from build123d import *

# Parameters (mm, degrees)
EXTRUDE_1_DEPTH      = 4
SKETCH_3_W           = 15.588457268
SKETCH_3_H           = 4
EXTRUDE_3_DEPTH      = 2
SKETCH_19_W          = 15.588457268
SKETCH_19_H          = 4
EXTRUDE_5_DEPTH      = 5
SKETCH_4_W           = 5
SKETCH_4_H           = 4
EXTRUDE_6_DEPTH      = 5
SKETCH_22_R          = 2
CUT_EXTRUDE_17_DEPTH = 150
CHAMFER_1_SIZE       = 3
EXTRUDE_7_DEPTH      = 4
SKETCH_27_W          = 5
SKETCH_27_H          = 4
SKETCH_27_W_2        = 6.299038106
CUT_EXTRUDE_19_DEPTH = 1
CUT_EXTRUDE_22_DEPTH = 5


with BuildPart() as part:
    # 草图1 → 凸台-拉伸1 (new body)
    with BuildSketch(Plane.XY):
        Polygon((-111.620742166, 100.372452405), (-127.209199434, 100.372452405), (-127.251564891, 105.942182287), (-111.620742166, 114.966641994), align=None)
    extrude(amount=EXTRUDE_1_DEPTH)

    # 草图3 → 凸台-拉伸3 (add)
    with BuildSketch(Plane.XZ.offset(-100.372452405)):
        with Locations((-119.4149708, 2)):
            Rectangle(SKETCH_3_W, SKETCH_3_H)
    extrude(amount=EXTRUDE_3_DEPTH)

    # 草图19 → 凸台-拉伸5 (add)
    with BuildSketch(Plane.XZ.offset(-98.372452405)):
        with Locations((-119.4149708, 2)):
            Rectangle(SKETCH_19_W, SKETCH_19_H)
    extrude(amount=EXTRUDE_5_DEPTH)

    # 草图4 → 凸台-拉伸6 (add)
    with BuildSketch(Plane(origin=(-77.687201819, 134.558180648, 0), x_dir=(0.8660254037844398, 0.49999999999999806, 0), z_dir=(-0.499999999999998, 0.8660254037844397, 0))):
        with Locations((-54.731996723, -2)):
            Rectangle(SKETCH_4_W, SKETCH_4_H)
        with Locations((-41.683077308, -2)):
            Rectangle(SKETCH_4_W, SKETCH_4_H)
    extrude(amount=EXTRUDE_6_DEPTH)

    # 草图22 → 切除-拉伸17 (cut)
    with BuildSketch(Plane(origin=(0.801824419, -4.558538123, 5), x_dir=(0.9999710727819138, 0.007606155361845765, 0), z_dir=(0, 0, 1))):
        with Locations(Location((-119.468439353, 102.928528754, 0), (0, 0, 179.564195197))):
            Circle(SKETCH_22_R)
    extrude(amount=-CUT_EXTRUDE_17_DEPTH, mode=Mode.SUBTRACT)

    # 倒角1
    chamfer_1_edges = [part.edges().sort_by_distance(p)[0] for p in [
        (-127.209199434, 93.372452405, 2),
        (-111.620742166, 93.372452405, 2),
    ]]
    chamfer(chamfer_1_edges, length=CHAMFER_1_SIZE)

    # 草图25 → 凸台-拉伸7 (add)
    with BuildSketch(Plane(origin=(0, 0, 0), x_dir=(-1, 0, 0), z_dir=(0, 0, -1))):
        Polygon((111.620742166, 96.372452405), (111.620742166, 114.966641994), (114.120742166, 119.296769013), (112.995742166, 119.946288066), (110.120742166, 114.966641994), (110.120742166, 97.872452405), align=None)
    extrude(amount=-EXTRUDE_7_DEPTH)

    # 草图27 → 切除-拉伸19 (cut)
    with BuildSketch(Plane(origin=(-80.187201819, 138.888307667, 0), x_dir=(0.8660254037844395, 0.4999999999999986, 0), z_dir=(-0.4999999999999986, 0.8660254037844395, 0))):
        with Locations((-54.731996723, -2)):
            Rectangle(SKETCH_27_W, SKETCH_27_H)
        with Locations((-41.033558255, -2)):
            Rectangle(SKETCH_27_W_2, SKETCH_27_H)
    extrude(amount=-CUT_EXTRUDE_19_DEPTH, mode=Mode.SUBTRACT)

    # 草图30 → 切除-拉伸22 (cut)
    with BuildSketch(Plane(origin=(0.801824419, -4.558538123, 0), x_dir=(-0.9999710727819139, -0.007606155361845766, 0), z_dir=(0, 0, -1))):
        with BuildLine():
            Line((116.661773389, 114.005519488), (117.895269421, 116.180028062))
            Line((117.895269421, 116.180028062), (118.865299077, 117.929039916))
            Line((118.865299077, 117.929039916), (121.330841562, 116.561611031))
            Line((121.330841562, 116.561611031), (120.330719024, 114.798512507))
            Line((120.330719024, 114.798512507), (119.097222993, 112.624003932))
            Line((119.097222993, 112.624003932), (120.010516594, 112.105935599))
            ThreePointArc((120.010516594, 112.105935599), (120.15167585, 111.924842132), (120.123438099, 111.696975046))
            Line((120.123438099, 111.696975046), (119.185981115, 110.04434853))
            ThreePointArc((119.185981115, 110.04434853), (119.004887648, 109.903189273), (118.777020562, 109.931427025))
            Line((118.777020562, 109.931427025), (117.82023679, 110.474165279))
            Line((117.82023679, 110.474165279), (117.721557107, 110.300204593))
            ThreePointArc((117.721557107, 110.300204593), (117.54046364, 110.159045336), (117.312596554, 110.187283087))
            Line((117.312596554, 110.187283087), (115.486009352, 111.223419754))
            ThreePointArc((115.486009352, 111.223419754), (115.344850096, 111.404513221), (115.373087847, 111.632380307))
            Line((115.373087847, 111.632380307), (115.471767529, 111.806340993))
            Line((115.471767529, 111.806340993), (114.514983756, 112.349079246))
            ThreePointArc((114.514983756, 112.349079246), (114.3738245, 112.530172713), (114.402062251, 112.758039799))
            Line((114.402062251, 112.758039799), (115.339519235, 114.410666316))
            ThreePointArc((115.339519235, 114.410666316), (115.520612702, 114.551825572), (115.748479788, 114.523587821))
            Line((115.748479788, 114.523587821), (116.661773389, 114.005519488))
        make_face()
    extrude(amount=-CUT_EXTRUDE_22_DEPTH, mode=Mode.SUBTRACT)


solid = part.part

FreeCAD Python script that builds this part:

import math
import FreeCAD as App
import Part
import Sketcher
from FreeCAD import Vector
Q = App.Units.Quantity


def edges_at(feature, points):
    """Names of the edges that pass closest to the given points."""
    edges = feature.Shape.Edges
    near = lambda p: min(range(len(edges)), key=lambda i: edges[i].distToShape(Part.Vertex(*p))[0])
    return sorted({f"Edge{near(p) + 1}" for p in points})

doc = App.newDocument("Part")
body = doc.addObject("PartDesign::Body", "Body")

# Sketch on XY plane
sketch1 = doc.addObject("Sketcher::SketchObject", "Sketch")
body.addObject(sketch1)
sketch1.AttachmentSupport = (doc.XY_Plane, [""])
sketch1.MapMode = "FlatFace"
sketch1.addGeometry([
    Part.LineSegment(Vector(-127.209199, 100.372452, 0), Vector(-111.620742, 100.372452, 0)),
    Part.LineSegment(Vector(-111.620742, 100.372452, 0), Vector(-111.620742, 114.966642, 0)),
    Part.LineSegment(Vector(-111.620742, 114.966642, 0), Vector(-127.251565, 105.942182, 0)),
    Part.LineSegment(Vector(-127.251565, 105.942182, 0), Vector(-127.209199, 100.372452, 0)),
], False)
sketch1.addConstraint([
    Sketcher.Constraint("Coincident", 0, 2, 1, 1),
    Sketcher.Constraint("Coincident", 1, 2, 2, 1),
    Sketcher.Constraint("Coincident", 2, 2, 3, 1),
    Sketcher.Constraint("Coincident", 3, 2, 0, 1),
    Sketcher.Constraint("Horizontal", 0),
    Sketcher.Constraint("Vertical", 1),
    Sketcher.Constraint("DistanceY", 1, 1, 1, 2, Q("14.59419 mm")),
    Sketcher.Constraint("DistanceX", 3, 2, -1, 1, Q("127.209199 mm")),
    Sketcher.Constraint("Distance", 2, Q("18.048919 mm")),
    Sketcher.Constraint("Distance", 3, Q("5.569891 mm")),
    Sketcher.Constraint("DistanceX", 0, 1, 0, 2, Q("15.588457 mm")),
    Sketcher.Constraint("DistanceY", -1, 1, 1, 2, Q("114.966642 mm")),
])
pad1 = doc.addObject("PartDesign::Pad", "Pad")
body.addObject(pad1)
pad1.Profile = sketch1
pad1.Length = 4

# Sketch on XZ plane
sketch2 = doc.addObject("Sketcher::SketchObject", "Sketch001")
body.addObject(sketch2)
sketch2.AttachmentSupport = (doc.XZ_Plane, [""])
sketch2.MapMode = "FlatFace"
sketch2.AttachmentOffset = App.Placement(Vector(0, 0, -100.372452), App.Rotation())
sketch2.addGeometry([
    Part.LineSegment(Vector(-127.209199, 4, 0), Vector(-127.209199, 0, 0)),
    Part.LineSegment(Vector(-127.209199, 0, 0), Vector(-111.620742, 0, 0)),
    Part.LineSegment(Vector(-111.620742, 0, 0), Vector(-111.620742, 4, 0)),
    Part.LineSegment(Vector(-111.620742, 4, 0), Vector(-127.209199, 4, 0)),
], False)
sketch2.addConstraint([
    Sketcher.Constraint("Coincident", 0, 2, 1, 1),
    Sketcher.Constraint("Coincident", 1, 2, 2, 1),
    Sketcher.Constraint("Coincident", 2, 2, 3, 1),
    Sketcher.Constraint("Coincident", 3, 2, 0, 1),
    Sketcher.Constraint("Vertical", 0),
    Sketcher.Constraint("Horizontal", 1),
    Sketcher.Constraint("Vertical", 2),
    Sketcher.Constraint("Horizontal", 3),
    Sketcher.Constraint("PointOnObject", 0, 2, -1),
    Sketcher.Constraint("DistanceY", 0, 2, 0, 1, Q("4 mm")),
    Sketcher.Constraint("DistanceX", 0, 2, -1, 1, Q("127.209199 mm")),
    Sketcher.Constraint("DistanceX", 1, 1, 1, 2, Q("15.588457 mm")),
])
pad2 = doc.addObject("PartDesign::Pad", "Pad001")
body.addObject(pad2)
pad2.Profile = sketch2
pad2.Length = 2

# Sketch on XZ plane
sketch3 = doc.addObject("Sketcher::SketchObject", "Sketch002")
body.addObject(sketch3)
sketch3.AttachmentSupport = (doc.XZ_Plane, [""])
sketch3.MapMode = "FlatFace"
sketch3.AttachmentOffset = App.Placement(Vector(0, 0, -98.372452), App.Rotation())
sketch3.addGeometry([
    Part.LineSegment(Vector(-127.209199, 4, 0), Vector(-127.209199, 0, 0)),
    Part.LineSegment(Vector(-127.209199, 0, 0), Vector(-111.620742, 0, 0)),
    Part.LineSegment(Vector(-111.620742, 0, 0), Vector(-111.620742, 4, 0)),
    Part.LineSegment(Vector(-111.620742, 4, 0), Vector(-127.209199, 4, 0)),
], False)
sketch3.addConstraint([
    Sketcher.Constraint("Coincident", 0, 2, 1, 1),
    Sketcher.Constraint("Coincident", 1, 2, 2, 1),
    Sketcher.Constraint("Coincident", 2, 2, 3, 1),
    Sketcher.Constraint("Coincident", 3, 2, 0, 1),
    Sketcher.Constraint("Vertical", 0),
    Sketcher.Constraint("Horizontal", 1),
    Sketcher.Constraint("Vertical", 2),
    Sketcher.Constraint("Horizontal", 3),
    Sketcher.Constraint("PointOnObject", 0, 2, -1),
    Sketcher.Constraint("DistanceY", 0, 2, 0, 1, Q("4 mm")),
    Sketcher.Constraint("DistanceX", 0, 2, -1, 1, Q("127.209199 mm")),
    Sketcher.Constraint("DistanceX", 1, 1, 1, 2, Q("15.588457 mm")),
])
pad3 = doc.addObject("PartDesign::Pad", "Pad002")
body.addObject(pad3)
pad3.Profile = sketch3
pad3.Length = 5

# Sketch on an angled plane
sketch4 = doc.addObject("Sketcher::SketchObject", "Sketch003")
body.addObject(sketch4)
sketch4.Placement = App.Placement(Vector(-77.687202, 134.558181, 0), App.Rotation(Vector(0.866025404, 0.5, 0), Vector(0, 0, -1), Vector(-0.5, 0.866025404, 0), "ZXY"))
sketch4.addGeometry([
    Part.LineSegment(Vector(-57.231997, 0, 0), Vector(-57.231997, -4, 0)),  # 0
    Part.LineSegment(Vector(-57.231997, -4, 0), Vector(-52.231997, -4, 0)),  # 1
    Part.LineSegment(Vector(-52.231997, -4, 0), Vector(-52.231997, 0, 0)),  # 2
    Part.LineSegment(Vector(-52.231997, 0, 0), Vector(-57.231997, 0, 0)),  # 3
    Part.LineSegment(Vector(-44.183077, 0, 0), Vector(-44.183077, -4, 0)),  # 4
    Part.LineSegment(Vector(-44.183077, -4, 0), Vector(-39.183077, -4, 0)),  # 5
    Part.LineSegment(Vector(-39.183077, -4, 0), Vector(-39.183077, 0, 0)),  # 6
    Part.LineSegment(Vector(-39.183077, 0, 0), Vector(-44.183077, 0, 0)),  # 7
], False)
sketch4.addConstraint([
    Sketcher.Constraint("Coincident", 0, 2, 1, 1),
    Sketcher.Constraint("Coincident", 1, 2, 2, 1),
    Sketcher.Constraint("Coincident", 2, 2, 3, 1),
    Sketcher.Constraint("Coincident", 3, 2, 0, 1),
    Sketcher.Constraint("Coincident", 4, 2, 5, 1),
    Sketcher.Constraint("Coincident", 5, 2, 6, 1),
    Sketcher.Constraint("Coincident", 6, 2, 7, 1),
    Sketcher.Constraint("Coincident", 7, 2, 4, 1),
    Sketcher.Constraint("Vertical", 0),
    Sketcher.Constraint("Horizontal", 1),
    Sketcher.Constraint("Vertical", 2),
    Sketcher.Constraint("Horizontal", 3),
    Sketcher.Constraint("Vertical", 4),
    Sketcher.Constraint("Horizontal", 5),
    Sketcher.Constraint("Vertical", 6),
    Sketcher.Constraint("Horizontal", 7),
    Sketcher.Constraint("PointOnObject", 2, 2, -1),
    Sketcher.Constraint("PointOnObject", 6, 2, -1),
    Sketcher.Constraint("Horizontal", 1, 2, 4, 2),
    Sketcher.Constraint("Equal", 3, 5),
    Sketcher.Constraint("DistanceX", 1, 1, 1, 2, Q("5 mm")),
    Sketcher.Constraint("DistanceY", 0, 2, 0, 1, Q("4 mm")),
    Sketcher.Constraint("DistanceX", 1, 2, 4, 2, Q("8.048919 mm")),
    Sketcher.Constraint("DistanceX", 0, 2, -1, 1, Q("57.231997 mm")),
])
pad4 = doc.addObject("PartDesign::Pad", "Pad003")
body.addObject(pad4)
pad4.Profile = sketch4
pad4.Length = 5

# Sketch on XY plane
sketch5 = doc.addObject("Sketcher::SketchObject", "Sketch004")
body.addObject(sketch5)
sketch5.AttachmentSupport = (doc.XY_Plane, [""])
sketch5.MapMode = "FlatFace"
sketch5.AttachmentOffset = App.Placement(Vector(0, 0, 5), App.Rotation())
sketch5.addGeometry(Part.Circle(Vector(-119.446049, 97.458318, 0), Vector(0, 0, 1), 2), False)
sketch5.addConstraint([
    Sketcher.Constraint("Diameter", 0, Q("4 mm")),
    Sketcher.Constraint("DistanceX", 0, 3, -1, 1, Q("119.446049 mm")),
    Sketcher.Constraint("DistanceY", -1, 1, 0, 3, Q("97.458318 mm")),
])
pocket1 = doc.addObject("PartDesign::Pocket", "Pocket")
body.addObject(pocket1)
pocket1.Profile = sketch5
pocket1.Length = 150
doc.recompute()

chamfer = doc.addObject("PartDesign::Chamfer", "Chamfer")
body.addObject(chamfer)
chamfer.Base = (pocket1, edges_at(pocket1, [(-127.209, 93.372, 2), (-111.621, 93.372, 2)]))
chamfer.Size = 3

# Sketch on XY plane
sketch6 = doc.addObject("Sketcher::SketchObject", "Sketch005")
body.addObject(sketch6)
sketch6.AttachmentSupport = (doc.XY_Plane, [""])
sketch6.MapMode = "FlatFace"
sketch6.addGeometry([
    Part.LineSegment(Vector(-111.620742, 96.372452, 0), Vector(-111.620742, 114.966642, 0)),  # 0
    Part.LineSegment(Vector(-111.620742, 114.966642, 0), Vector(-114.120742, 119.296769, 0)),  # 1
    Part.LineSegment(Vector(-114.120742, 119.296769, 0), Vector(-112.995742, 119.946288, 0)),  # 2
    Part.LineSegment(Vector(-112.995742, 119.946288, 0), Vector(-110.120742, 114.966642, 0)),  # 3
    Part.LineSegment(Vector(-110.120742, 114.966642, 0), Vector(-110.120742, 97.872452, 0)),  # 4
    Part.LineSegment(Vector(-110.120742, 97.872452, 0), Vector(-111.620742, 96.372452, 0)),  # 5
], False)
sketch6.addConstraint([
    Sketcher.Constraint("Coincident", 0, 2, 1, 1),
    Sketcher.Constraint("Coincident", 1, 2, 2, 1),
    Sketcher.Constraint("Coincident", 2, 2, 3, 1),
    Sketcher.Constraint("Coincident", 3, 2, 4, 1),
    Sketcher.Constraint("Coincident", 4, 2, 5, 1),
    Sketcher.Constraint("Coincident", 5, 2, 0, 1),
    Sketcher.Constraint("Vertical", 0),
    Sketcher.Constraint("Vertical", 4),
    Sketcher.Constraint("Perpendicular", 1, 2),
    Sketcher.Constraint("Perpendicular", 2, 3),
    Sketcher.Constraint("Horizontal", 0, 2, 3, 2),
    Sketcher.Constraint("Angle", 1, Q("120 deg")),
    Sketcher.Constraint("Angle", 5, Q("-135 deg")),
    Sketcher.Constraint("Distance", 1, Q("5 mm")),
    Sketcher.Constraint("DistanceX", 1, 2, 3, 2, Q("4 mm")),
    Sketcher.Constraint("DistanceY", 0, 1, 0, 2, Q("18.59419 mm")),
    Sketcher.Constraint("DistanceY", -1, 1, 0, 2, Q("114.966642 mm")),
    Sketcher.Constraint("DistanceX", 0, 2, -1, 1, Q("111.620742 mm")),
])
pad5 = doc.addObject("PartDesign::Pad", "Pad004")
body.addObject(pad5)
pad5.Profile = sketch6
pad5.Length = 4

# Sketch on an angled plane
sketch7 = doc.addObject("Sketcher::SketchObject", "Sketch006")
body.addObject(sketch7)
sketch7.Placement = App.Placement(Vector(-80.187202, 138.888308, 0), App.Rotation(Vector(0.866025404, 0.5, 0), Vector(0, 0, -1), Vector(-0.5, 0.866025404, 0), "ZXY"))
sketch7.addGeometry([
    Part.LineSegment(Vector(-57.231997, 0, 0), Vector(-57.231997, -4, 0)),  # 0
    Part.LineSegment(Vector(-57.231997, -4, 0), Vector(-52.231997, -4, 0)),  # 1
    Part.LineSegment(Vector(-52.231997, -4, 0), Vector(-52.231997, 0, 0)),  # 2
    Part.LineSegment(Vector(-52.231997, 0, 0), Vector(-57.231997, 0, 0)),  # 3
    Part.LineSegment(Vector(-44.183077, 0, 0), Vector(-44.183077, -4, 0)),  # 4
    Part.LineSegment(Vector(-44.183077, -4, 0), Vector(-37.884039, -4, 0)),  # 5
    Part.LineSegment(Vector(-37.884039, -4, 0), Vector(-37.884039, 0, 0)),  # 6
    Part.LineSegment(Vector(-37.884039, 0, 0), Vector(-44.183077, 0, 0)),  # 7
], False)
sketch7.addConstraint([
    Sketcher.Constraint("Coincident", 0, 2, 1, 1),
    Sketcher.Constraint("Coincident", 1, 2, 2, 1),
    Sketcher.Constraint("Coincident", 2, 2, 3, 1),
    Sketcher.Constraint("Coincident", 3, 2, 0, 1),
    Sketcher.Constraint("Coincident", 4, 2, 5, 1),
    Sketcher.Constraint("Coincident", 5, 2, 6, 1),
    Sketcher.Constraint("Coincident", 6, 2, 7, 1),
    Sketcher.Constraint("Coincident", 7, 2, 4, 1),
    Sketcher.Constraint("Vertical", 0),
    Sketcher.Constraint("Horizontal", 1),
    Sketcher.Constraint("Vertical", 2),
    Sketcher.Constraint("Horizontal", 3),
    Sketcher.Constraint("Vertical", 4),
    Sketcher.Constraint("Horizontal", 5),
    Sketcher.Constraint("Vertical", 6),
    Sketcher.Constraint("Horizontal", 7),
    Sketcher.Constraint("PointOnObject", 2, 2, -1),
    Sketcher.Constraint("PointOnObject", 6, 2, -1),
    Sketcher.Constraint("Horizontal", 1, 2, 4, 2),
    Sketcher.Constraint("DistanceX", 1, 1, 1, 2, Q("5 mm")),
    Sketcher.Constraint("DistanceY", 0, 2, 0, 1, Q("4 mm")),
    Sketcher.Constraint("DistanceX", 5, 1, 5, 2, Q("6.299038 mm")),
    Sketcher.Constraint("DistanceX", 5, 2, -1, 1, Q("37.884039 mm")),
    Sketcher.Constraint("DistanceX", 1, 2, 4, 2, Q("8.048919 mm")),
])
pocket2 = doc.addObject("PartDesign::Pocket", "Pocket001")
body.addObject(pocket2)
pocket2.Profile = sketch7
pocket2.Length = 1

# Sketch on XY plane
sketch8 = doc.addObject("Sketcher::SketchObject", "Sketch007")
body.addObject(sketch8)
sketch8.AttachmentSupport = (doc.XY_Plane, [""])
sketch8.MapMode = "FlatFace"
sketch8.addGeometry([
    Part.LineSegment(Vector(-117.973718, 110.7214, 0), Vector(-116.723718, 108.556336, 0)),  # 0
    Part.LineSegment(Vector(-116.723718, 108.556336, 0), Vector(-115.814391, 109.081336, 0)),  # 1
    Part.ArcOfCircle(Part.Circle(Vector(-115.664391, 108.821528, 0), Vector(0, 0, 1), 0.3), math.radians(30), math.radians(120)),  # 2
    Part.LineSegment(Vector(-115.404584, 108.971528, 0), Vector(-114.454584, 107.32608, 0)),  # 3
    Part.ArcOfCircle(Part.Circle(Vector(-114.714391, 107.17608, 0), Vector(0, 0, 1), 0.3), math.radians(-60), math.radians(30)),  # 4
    Part.LineSegment(Vector(-114.564391, 106.916272, 0), Vector(-115.517019, 106.366272, 0)),  # 5
    Part.LineSegment(Vector(-115.517019, 106.366272, 0), Vector(-115.417019, 106.193067, 0)),  # 6
    Part.ArcOfCircle(Part.Circle(Vector(-115.676827, 106.043067, 0), Vector(0, 0, 1), 0.3), math.radians(-60), math.radians(30)),  # 7
    Part.LineSegment(Vector(-115.526827, 105.78326, 0), Vector(-117.34548, 104.73326, 0)),  # 8
    Part.ArcOfCircle(Part.Circle(Vector(-117.49548, 104.993067, 0), Vector(0, 0, 1), 0.3), math.radians(-150), math.radians(-60)),  # 9
    Part.LineSegment(Vector(-117.755288, 104.843067, 0), Vector(-117.855288, 105.016272, 0)),  # 10
    Part.LineSegment(Vector(-117.855288, 105.016272, 0), Vector(-118.807916, 104.466272, 0)),  # 11
    Part.ArcOfCircle(Part.Circle(Vector(-118.957916, 104.72608, 0), Vector(0, 0, 1), 0.3), math.radians(-150), math.radians(-59.999999)),  # 12
    Part.LineSegment(Vector(-119.217723, 104.57608, 0), Vector(-120.167723, 106.221528, 0)),  # 13
    Part.ArcOfCircle(Part.Circle(Vector(-119.907916, 106.371528, 0), Vector(0, 0, 1), 0.3), math.radians(120), math.radians(210)),  # 14
    Part.LineSegment(Vector(-120.057916, 106.631336, 0), Vector(-119.148589, 107.156336, 0)),  # 15
    Part.LineSegment(Vector(-119.148589, 107.156336, 0), Vector(-120.398589, 109.3214, 0)),  # 16
    Part.LineSegment(Vector(-120.398589, 109.3214, 0), Vector(-121.412093, 111.07684, 0)),  # 17
    Part.LineSegment(Vector(-121.412093, 111.07684, 0), Vector(-118.957023, 112.462983, 0)),  # 18
    Part.LineSegment(Vector(-118.957023, 112.462983, 0), Vector(-117.973718, 110.7214, 0)),  # 19
], False)
sketch8.addConstraint([
    Sketcher.Constraint("Coincident", 0, 2, 1, 1),
    Sketcher.Constraint("Tangent", 1, 2, 2, 2),
    Sketcher.Constraint("Tangent", 2, 1, 3, 1),
    Sketcher.Constraint("Tangent", 3, 2, 4, 2),
    Sketcher.Constraint("Tangent", 4, 1, 5, 1),
    Sketcher.Constraint("Coincident", 5, 2, 6, 1),
    Sketcher.Constraint("Tangent", 6, 2, 7, 2),
    Sketcher.Constraint("Tangent", 7, 1, 8, 1),
    Sketcher.Constraint("Tangent", 8, 2, 9, 2),
    Sketcher.Constraint("Tangent", 9, 1, 10, 1),
    Sketcher.Constraint("Coincident", 10, 2, 11, 1),
    Sketcher.Constraint("Tangent", 11, 2, 12, 2),
    Sketcher.Constraint("Tangent", 12, 1, 13, 1),
    Sketcher.Constraint("Tangent", 13, 2, 14, 2),
    Sketcher.Constraint("Tangent", 14, 1, 15, 1),
    Sketcher.Constraint("Coincident", 15, 2, 16, 1),
    Sketcher.Constraint("Coincident", 16, 2, 17, 1),
    Sketcher.Constraint("Coincident", 17, 2, 18, 1),
    Sketcher.Constraint("Coincident", 18, 2, 19, 1),
    Sketcher.Constraint("Coincident", 19, 2, 0, 1),
    Sketcher.Constraint("Equal", 2, 4),
    Sketcher.Constraint("Equal", 4, 7),
    Sketcher.Constraint("Equal", 7, 9),
    Sketcher.Constraint("Equal", 9, 12),
    Sketcher.Constraint("Equal", 12, 14),
    Sketcher.Constraint("Perpendicular", 0, 1),
    Sketcher.Constraint("Perpendicular", 1, 3),
    Sketcher.Constraint("Perpendicular", 3, 5),
    Sketcher.Constraint("Perpendicular", 5, 6),
    Sketcher.Constraint("Perpendicular", 6, 8),
    Sketcher.Constraint("Perpendicular", 8, 10),
    Sketcher.Constraint("Perpendicular", 10, 11),
    Sketcher.Constraint("Perpendicular", 11, 13),
    Sketcher.Constraint("Perpendicular", 13, 15),
    Sketcher.Constraint("Perpendicular", 15, 16),
    Sketcher.Constraint("Parallel", 16, 17),
    Sketcher.Constraint("Perpendicular", 18, 19),
    Sketcher.Constraint("Equal", 6, 10),
    Sketcher.Constraint("Equal", 5, 11),
    Sketcher.Constraint("Equal", 3, 13),
    Sketcher.Constraint("Equal", 1, 15),
    Sketcher.Constraint("Equal", 0, 16),
    Sketcher.Constraint("Radius", 2, Q("0.3 mm")),
    Sketcher.Constraint("Angle", 0, Q("-60 deg")),
    Sketcher.Constraint("Distance", 19, Q("2 mm")),
    Sketcher.Constraint("Distance", 0, Q("2.5 mm")),
    Sketcher.Constraint("Distance", 3, Q("1.9 mm")),
    Sketcher.Constraint("Distance", 5, Q("1.1 mm")),
    Sketcher.Constraint("Distance", 6, Q("0.2 mm")),
    Sketcher.Constraint("Distance", 8, Q("2.1 mm")),
    Sketcher.Constraint("DistanceY", 16, 2, 19, 2, Q("1.4 mm")),
    Sketcher.Constraint("DistanceY", -1, 1, 16, 2, Q("109.3214 mm")),
    Sketcher.Constraint("Distance", 17, Q("2.027008 mm")),
    Sketcher.Constraint("DistanceX", 2, 3, -1, 1, Q("115.664391 mm")),
])
pocket3 = doc.addObject("PartDesign::Pocket", "Pocket002")
body.addObject(pocket3)
pocket3.Profile = sketch8
pocket3.Length = 5
pocket3.Reversed = True

doc.recompute()
